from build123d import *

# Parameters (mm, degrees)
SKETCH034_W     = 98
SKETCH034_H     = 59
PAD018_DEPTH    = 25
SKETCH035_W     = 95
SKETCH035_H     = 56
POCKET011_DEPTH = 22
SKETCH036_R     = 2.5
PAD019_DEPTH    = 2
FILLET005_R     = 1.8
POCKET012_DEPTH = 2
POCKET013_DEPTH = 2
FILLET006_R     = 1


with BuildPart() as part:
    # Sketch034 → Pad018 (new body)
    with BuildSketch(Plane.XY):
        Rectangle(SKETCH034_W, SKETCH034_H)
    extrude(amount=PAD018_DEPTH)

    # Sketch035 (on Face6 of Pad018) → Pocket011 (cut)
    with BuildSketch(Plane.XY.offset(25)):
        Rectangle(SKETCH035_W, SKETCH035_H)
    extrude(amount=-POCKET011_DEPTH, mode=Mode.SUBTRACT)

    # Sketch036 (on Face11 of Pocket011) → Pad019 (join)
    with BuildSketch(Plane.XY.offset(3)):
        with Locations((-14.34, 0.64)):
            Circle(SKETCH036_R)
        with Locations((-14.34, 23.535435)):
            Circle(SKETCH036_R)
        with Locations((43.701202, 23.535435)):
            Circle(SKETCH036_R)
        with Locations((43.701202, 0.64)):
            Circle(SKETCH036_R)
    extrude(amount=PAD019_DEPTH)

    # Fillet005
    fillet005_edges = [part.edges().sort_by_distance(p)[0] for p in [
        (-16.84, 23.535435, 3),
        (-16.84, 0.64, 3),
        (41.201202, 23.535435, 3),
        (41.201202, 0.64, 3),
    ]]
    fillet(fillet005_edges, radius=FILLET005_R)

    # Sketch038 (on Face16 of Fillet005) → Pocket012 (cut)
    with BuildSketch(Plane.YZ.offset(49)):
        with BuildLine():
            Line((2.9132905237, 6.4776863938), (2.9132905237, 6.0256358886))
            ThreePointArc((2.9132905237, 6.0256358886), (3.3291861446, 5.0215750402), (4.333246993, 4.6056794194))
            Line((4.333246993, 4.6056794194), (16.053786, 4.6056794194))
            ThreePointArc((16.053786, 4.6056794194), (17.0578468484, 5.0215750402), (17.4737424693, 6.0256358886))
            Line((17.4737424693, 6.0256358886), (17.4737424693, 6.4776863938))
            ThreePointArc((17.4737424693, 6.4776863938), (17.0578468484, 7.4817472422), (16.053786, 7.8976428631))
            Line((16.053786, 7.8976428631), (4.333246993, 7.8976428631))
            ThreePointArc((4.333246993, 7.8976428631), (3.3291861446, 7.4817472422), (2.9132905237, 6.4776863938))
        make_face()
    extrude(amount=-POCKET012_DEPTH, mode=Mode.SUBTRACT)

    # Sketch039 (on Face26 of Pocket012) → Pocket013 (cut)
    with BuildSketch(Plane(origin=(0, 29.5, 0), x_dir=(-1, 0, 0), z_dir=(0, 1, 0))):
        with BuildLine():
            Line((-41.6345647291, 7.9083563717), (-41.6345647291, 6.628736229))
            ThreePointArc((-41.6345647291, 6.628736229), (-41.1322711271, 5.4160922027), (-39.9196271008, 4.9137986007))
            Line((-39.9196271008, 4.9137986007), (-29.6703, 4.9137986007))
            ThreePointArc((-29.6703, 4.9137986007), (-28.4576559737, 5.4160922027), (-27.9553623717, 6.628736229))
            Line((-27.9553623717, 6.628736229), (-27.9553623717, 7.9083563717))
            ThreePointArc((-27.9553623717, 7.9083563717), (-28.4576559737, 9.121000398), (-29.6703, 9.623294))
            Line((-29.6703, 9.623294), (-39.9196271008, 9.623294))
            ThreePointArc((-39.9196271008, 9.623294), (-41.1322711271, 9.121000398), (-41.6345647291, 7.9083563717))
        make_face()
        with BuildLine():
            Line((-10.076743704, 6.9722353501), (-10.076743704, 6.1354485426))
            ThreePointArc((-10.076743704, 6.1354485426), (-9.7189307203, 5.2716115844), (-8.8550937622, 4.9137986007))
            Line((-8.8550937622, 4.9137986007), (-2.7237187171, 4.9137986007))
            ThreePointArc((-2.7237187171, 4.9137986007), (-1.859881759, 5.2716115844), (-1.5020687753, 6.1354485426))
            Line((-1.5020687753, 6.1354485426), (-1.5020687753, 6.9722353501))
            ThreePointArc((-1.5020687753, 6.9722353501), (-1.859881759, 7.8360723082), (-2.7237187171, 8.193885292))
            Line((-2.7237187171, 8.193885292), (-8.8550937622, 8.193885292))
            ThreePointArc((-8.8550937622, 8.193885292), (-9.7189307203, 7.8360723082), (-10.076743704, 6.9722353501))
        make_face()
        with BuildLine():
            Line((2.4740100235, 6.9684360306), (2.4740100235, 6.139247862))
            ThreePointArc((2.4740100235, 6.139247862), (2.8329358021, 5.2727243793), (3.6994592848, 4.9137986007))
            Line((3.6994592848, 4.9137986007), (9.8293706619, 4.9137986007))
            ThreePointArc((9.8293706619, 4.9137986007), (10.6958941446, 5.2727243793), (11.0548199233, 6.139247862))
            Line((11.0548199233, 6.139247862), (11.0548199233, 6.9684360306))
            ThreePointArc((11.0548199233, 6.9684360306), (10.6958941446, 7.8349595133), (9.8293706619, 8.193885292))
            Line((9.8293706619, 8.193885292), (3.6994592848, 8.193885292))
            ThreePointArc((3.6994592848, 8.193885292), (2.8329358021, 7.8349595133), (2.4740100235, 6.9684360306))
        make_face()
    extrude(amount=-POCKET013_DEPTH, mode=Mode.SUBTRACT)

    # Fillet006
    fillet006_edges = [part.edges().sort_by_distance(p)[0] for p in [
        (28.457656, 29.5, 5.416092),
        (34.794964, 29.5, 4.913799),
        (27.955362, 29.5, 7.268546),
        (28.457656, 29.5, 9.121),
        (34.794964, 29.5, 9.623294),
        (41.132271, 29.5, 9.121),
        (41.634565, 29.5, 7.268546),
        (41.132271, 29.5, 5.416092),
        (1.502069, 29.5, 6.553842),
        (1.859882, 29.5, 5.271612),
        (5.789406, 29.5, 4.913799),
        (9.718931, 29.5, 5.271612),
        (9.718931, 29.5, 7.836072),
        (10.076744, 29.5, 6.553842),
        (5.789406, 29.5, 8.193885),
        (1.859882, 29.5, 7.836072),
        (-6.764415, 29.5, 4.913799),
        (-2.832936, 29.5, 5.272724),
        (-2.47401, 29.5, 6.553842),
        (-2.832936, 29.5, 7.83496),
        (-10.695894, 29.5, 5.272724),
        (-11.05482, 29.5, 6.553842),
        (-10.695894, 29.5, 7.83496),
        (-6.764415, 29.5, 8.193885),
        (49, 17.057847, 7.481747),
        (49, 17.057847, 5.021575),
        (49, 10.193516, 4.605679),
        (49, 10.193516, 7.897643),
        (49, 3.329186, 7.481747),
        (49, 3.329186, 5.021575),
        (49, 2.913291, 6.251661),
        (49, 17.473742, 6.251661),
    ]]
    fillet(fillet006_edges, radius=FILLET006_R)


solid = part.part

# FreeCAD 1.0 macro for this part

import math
import FreeCAD as App
import Part
import Sketcher
from FreeCAD import Vector


def edges_at(feature, points):
    """Names of the edges that pass closest to the given points."""
    edges = feature.Shape.Edges
    near = lambda p: min(range(len(edges)), key=lambda i: edges[i].distToShape(Part.Vertex(*p))[0])
    return sorted({f"Edge{near(p) + 1}" for p in points})

doc = App.newDocument("Part")
body = doc.addObject("PartDesign::Body", "Body")

# Sketch on XY plane
sketch1 = doc.addObject("Sketcher::SketchObject", "Sketch")
body.addObject(sketch1)
sketch1.AttachmentSupport = (doc.XY_Plane, [""])
sketch1.MapMode = "FlatFace"
sketch1.addGeometry(Part.LineSegment(Vector(-49, 29.5, 0), Vector(-49, -29.5, 0)), False)
sketch1.addGeometry(Part.LineSegment(Vector(-49, -29.5, 0), Vector(49, -29.5, 0)), False)
sketch1.addGeometry(Part.LineSegment(Vector(49, -29.5, 0), Vector(49, 29.5, 0)), False)
sketch1.addGeometry(Part.LineSegment(Vector(49, 29.5, 0), Vector(-49, 29.5, 0)), False)
sketch1.addConstraint(Sketcher.Constraint("Coincident", 0, 2, 1, 1))
sketch1.addConstraint(Sketcher.Constraint("Coincident", 1, 2, 2, 1))
sketch1.addConstraint(Sketcher.Constraint("Coincident", 2, 2, 3, 1))
sketch1.addConstraint(Sketcher.Constraint("Coincident", 3, 2, 0, 1))
sketch1.addConstraint(Sketcher.Constraint("Vertical", 0))
sketch1.addConstraint(Sketcher.Constraint("Horizontal", 1))
sketch1.addConstraint(Sketcher.Constraint("Vertical", 2))
sketch1.addConstraint(Sketcher.Constraint("Horizontal", 3))
sketch1.addConstraint(Sketcher.Constraint("Symmetric", 0, 2, 2, 2, -1, 1))
sketch1.addConstraint(Sketcher.Constraint("DistanceX", 1, 1, 1, 2, 98.0))
sketch1.addConstraint(Sketcher.Constraint("DistanceY", 0, 2, 0, 1, 59.0))
pad1 = doc.addObject("PartDesign::Pad", "Pad")
body.addObject(pad1)
pad1.Profile = sketch1
pad1.Length = 25

# Sketch on XY plane
sketch2 = doc.addObject("Sketcher::SketchObject", "Sketch001")
body.addObject(sketch2)
sketch2.AttachmentSupport = (doc.XY_Plane, [""])
sketch2.MapMode = "FlatFace"
sketch2.AttachmentOffset = App.Placement(Vector(0, 0, 25), App.Rotation())
sketch2.addGeometry(Part.LineSegment(Vector(-47.5, 28, 0), Vector(-47.5, -28, 0)), False)
sketch2.addGeometry(Part.LineSegment(Vector(-47.5, -28, 0), Vector(47.5, -28, 0)), False)
sketch2.addGeometry(Part.LineSegment(Vector(47.5, -28, 0), Vector(47.5, 28, 0)), False)
sketch2.addGeometry(Part.LineSegment(Vector(47.5, 28, 0), Vector(-47.5, 28, 0)), False)
sketch2.addConstraint(Sketcher.Constraint("Coincident", 0, 2, 1, 1))
sketch2.addConstraint(Sketcher.Constraint("Coincident", 1, 2, 2, 1))
sketch2.addConstraint(Sketcher.Constraint("Coincident", 2, 2, 3, 1))
sketch2.addConstraint(Sketcher.Constraint("Coincident", 3, 2, 0, 1))
sketch2.addConstraint(Sketcher.Constraint("Vertical", 0))
sketch2.addConstraint(Sketcher.Constraint("Horizontal", 1))
sketch2.addConstraint(Sketcher.Constraint("Vertical", 2))
sketch2.addConstraint(Sketcher.Constraint("Horizontal", 3))
sketch2.addConstraint(Sketcher.Constraint("Symmetric", 0, 2, 2, 2, -1, 1))
sketch2.addConstraint(Sketcher.Constraint("DistanceX", 1, 1, 1, 2, 95.0))
sketch2.addConstraint(Sketcher.Constraint("DistanceY", 0, 2, 0, 1, 56.0))
pocket1 = doc.addObject("PartDesign::Pocket", "Pocket")
body.addObject(pocket1)
pocket1.Profile = sketch2
pocket1.Length = 22

# Sketch on XY plane
sketch3 = doc.addObject("Sketcher::SketchObject", "Sketch002")
body.addObject(sketch3)
sketch3.AttachmentSupport = (doc.XY_Plane, [""])
sketch3.MapMode = "FlatFace"
sketch3.AttachmentOffset = App.Placement(Vector(0, 0, 3), App.Rotation())
sketch3.addGeometry(Part.Circle(Vector(-14.34, 0.64, 0), Vector(0, 0, 1), 2.5), False)
sketch3.addGeometry(Part.Circle(Vector(-14.34, 23.535435, 0), Vector(0, 0, 1), 2.5), False)
sketch3.addGeometry(Part.Circle(Vector(43.701202, 23.535435, 0), Vector(0, 0, 1), 2.5), False)
sketch3.addGeometry(Part.Circle(Vector(43.701202, 0.64, 0), Vector(0, 0, 1), 2.5), False)
sketch3.addConstraint(Sketcher.Constraint("Equal", 0, 1))
sketch3.addConstraint(Sketcher.Constraint("Equal", 1, 2))
sketch3.addConstraint(Sketcher.Constraint("Equal", 2, 3))
sketch3.addConstraint(Sketcher.Constraint("Horizontal", 1, 3, 2, 3))
sketch3.addConstraint(Sketcher.Constraint("Horizontal", 0, 3, 3, 3))
sketch3.addConstraint(Sketcher.Constraint("Vertical", 0, 3, 1, 3))
sketch3.addConstraint(Sketcher.Constraint("Vertical", 2, 3, 3, 3))
sketch3.addConstraint(Sketcher.Constraint("Diameter", 0, 5.0))
sketch3.addConstraint(Sketcher.Constraint("DistanceX", 0, 3, -1, 1, 14.34))
sketch3.addConstraint(Sketcher.Constraint("DistanceY", -1, 1, 0, 3, 0.64))
sketch3.addConstraint(Sketcher.Constraint("DistanceX", 1, 3, 2, 3, 58.041202))
sketch3.addConstraint(Sketcher.Constraint("DistanceY", -1, 1, 1, 3, 23.535435))
pad2 = doc.addObject("PartDesign::Pad", "Pad001")
body.addObject(pad2)
pad2.Profile = sketch3
pad2.Length = 2
doc.recompute()

fillet = doc.addObject("PartDesign::Fillet", "Fillet")
body.addObject(fillet)
fillet.Base = (pad2, edges_at(pad2, [
    (-16.84, 23.535, 3),
    (-16.84, 0.64, 3),
    (41.201, 23.535, 3),
    (41.201, 0.64, 3),
]))
fillet.Radius = 1.8

# Sketch on YZ plane
sketch4 = doc.addObject("Sketcher::SketchObject", "Sketch003")
body.addObject(sketch4)
sketch4.AttachmentSupport = (doc.YZ_Plane, [""])
sketch4.MapMode = "FlatFace"
sketch4.AttachmentOffset = App.Placement(Vector(0, 0, 49), App.Rotation())
sketch4.addGeometry(Part.LineSegment(Vector(2.913291, 6.477686, 0), Vector(2.913291, 6.025636, 0)), False)
sketch4.addGeometry(Part.ArcOfCircle(Part.Circle(Vector(4.333247, 6.025636, 0), Vector(0, 0, 1), 1.419956), math.radians(180), math.radians(270)), False)
sketch4.addGeometry(Part.LineSegment(Vector(4.333247, 4.605679, 0), Vector(16.053786, 4.605679, 0)), False)
sketch4.addGeometry(Part.ArcOfCircle(Part.Circle(Vector(16.053786, 6.025636, 0), Vector(0, 0, 1), 1.419956), math.radians(-90), math.radians(0)), False)
sketch4.addGeometry(Part.LineSegment(Vector(17.473742, 6.025636, 0), Vector(17.473742, 6.477686, 0)), False)
sketch4.addGeometry(Part.ArcOfCircle(Part.Circle(Vector(16.053786, 6.477686, 0), Vector(0, 0, 1), 1.419956), math.radians(0), math.radians(90)), False)
sketch4.addGeometry(Part.LineSegment(Vector(16.053786, 7.897643, 0), Vector(4.333247, 7.897643, 0)), False)
sketch4.addGeometry(Part.ArcOfCircle(Part.Circle(Vector(4.333247, 6.477686, 0), Vector(0, 0, 1), 1.419956), math.radians(90), math.radians(180)), False)
sketch4.addConstraint(Sketcher.Constraint("Tangent", 0, 2, 1, 1))
sketch4.addConstraint(Sketcher.Constraint("Tangent", 1, 2, 2, 1))
sketch4.addConstraint(Sketcher.Constraint("Tangent", 2, 2, 3, 1))
sketch4.addConstraint(Sketcher.Constraint("Tangent", 3, 2, 4, 1))
sketch4.addConstraint(Sketcher.Constraint("Tangent", 4, 2, 5, 1))
sketch4.addConstraint(Sketcher.Constraint("Tangent", 5, 2, 6, 1))
sketch4.addConstraint(Sketcher.Constraint("Tangent", 6, 2, 7, 1))
sketch4.addConstraint(Sketcher.Constraint("Tangent", 7, 2, 0, 1))
sketch4.addConstraint(Sketcher.Constraint("Vertical", 0))
sketch4.addConstraint(Sketcher.Constraint("Horizontal", 2))
sketch4.addConstraint(Sketcher.Constraint("Vertical", 4))
sketch4.addConstraint(Sketcher.Constraint("Horizontal", 6))
sketch4.addConstraint(Sketcher.Constraint("Equal", 1, 3))
sketch4.addConstraint(Sketcher.Constraint("Equal", 3, 5))
sketch4.addConstraint(Sketcher.Constraint("Equal", 5, 7))
sketch4.addConstraint(Sketcher.Constraint("Radius", 1, 1.419956))
sketch4.addConstraint(Sketcher.Constraint("DistanceX", 2, 1, 2, 2, 11.720539))
sketch4.addConstraint(Sketcher.Constraint("DistanceY", 0, 2, 0, 1, 0.452051))
sketch4.addConstraint(Sketcher.Constraint("DistanceX", -1, 1, 0, 2, 2.913291))
sketch4.addConstraint(Sketcher.Constraint("DistanceY", -1, 1, 1, 2, 4.605679))
pocket2 = doc.addObject("PartDesign::Pocket", "Pocket001")
body.addObject(pocket2)
pocket2.Profile = sketch4
pocket2.Length = 2

# Sketch on XZ plane
sketch5 = doc.addObject("Sketcher::SketchObject", "Sketch004")
body.addObject(sketch5)
sketch5.AttachmentSupport = (doc.XZ_Plane, [""])
sketch5.MapMode = "FlatFace"
sketch5.AttachmentOffset = App.Placement(Vector(0, 0, -29.5), App.Rotation())
sketch5.addGeometry(Part.LineSegment(Vector(41.634565, 7.908356, 0), Vector(41.634565, 6.628736, 0)), False)
sketch5.addGeometry(Part.ArcOfCircle(Part.Circle(Vector(39.919627, 6.628736, 0), Vector(0, 0, 1), 1.714938), math.radians(-90), math.radians(0)), False)
sketch5.addGeometry(Part.LineSegment(Vector(39.919627, 4.913799, 0), Vector(29.6703, 4.913799, 0)), False)
sketch5.addGeometry(Part.ArcOfCircle(Part.Circle(Vector(29.6703, 6.628736, 0), Vector(0, 0, 1), 1.714938), math.radians(180), math.radians(270)), False)
sketch5.addGeometry(Part.LineSegment(Vector(27.955362, 6.628736, 0), Vector(27.955362, 7.908356, 0)), False)
sketch5.addGeometry(Part.ArcOfCircle(Part.Circle(Vector(29.6703, 7.908356, 0), Vector(0, 0, 1), 1.714938), math.radians(90), math.radians(180)), False)
sketch5.addGeometry(Part.LineSegment(Vector(29.6703, 9.623294, 0), Vector(39.919627, 9.623294, 0)), False)
sketch5.addGeometry(Part.ArcOfCircle(Part.Circle(Vector(39.919627, 7.908356, 0), Vector(0, 0, 1), 1.714938), math.radians(0), math.radians(90)), False)
sketch5.addGeometry(Part.LineSegment(Vector(10.076744, 6.972235, 0), Vector(10.076744, 6.135449, 0)), False)
sketch5.addGeometry(Part.ArcOfCircle(Part.Circle(Vector(8.855094, 6.135449, 0), Vector(0, 0, 1), 1.22165), math.radians(-90), math.radians(0)), False)
sketch5.addGeometry(Part.LineSegment(Vector(8.855094, 4.913799, 0), Vector(2.723719, 4.913799, 0)), False)
sketch5.addGeometry(Part.ArcOfCircle(Part.Circle(Vector(2.723719, 6.135449, 0), Vector(0, 0, 1), 1.22165), math.radians(180), math.radians(270)), False)
sketch5.addGeometry(Part.LineSegment(Vector(1.502069, 6.135449, 0), Vector(1.502069, 6.972235, 0)), False)
sketch5.addGeometry(Part.ArcOfCircle(Part.Circle(Vector(2.723719, 6.972235, 0), Vector(0, 0, 1), 1.22165), math.radians(90), math.radians(180)), False)
sketch5.addGeometry(Part.LineSegment(Vector(2.723719, 8.193885, 0), Vector(8.855094, 8.193885, 0)), False)
sketch5.addGeometry(Part.ArcOfCircle(Part.Circle(Vector(8.855094, 6.972235, 0), Vector(0, 0, 1), 1.22165), math.radians(0), math.radians(90)), False)
sketch5.addGeometry(Part.LineSegment(Vector(-2.47401, 6.968436, 0), Vector(-2.47401, 6.139248, 0)), False)
sketch5.addGeometry(Part.ArcOfCircle(Part.Circle(Vector(-3.699459, 6.139248, 0), Vector(0, 0, 1), 1.225449), math.radians(-90), math.radians(0)), False)
sketch5.addGeometry(Part.LineSegment(Vector(-3.699459, 4.913799, 0), Vector(-9.829371, 4.913799, 0)), False)
sketch5.addGeometry(Part.ArcOfCircle(Part.Circle(Vector(-9.829371, 6.139248, 0), Vector(0, 0, 1), 1.225449), math.radians(180), math.radians(270)), False)
sketch5.addGeometry(Part.LineSegment(Vector(-11.05482, 6.139248, 0), Vector(-11.05482, 6.968436, 0)), False)
sketch5.addGeometry(Part.ArcOfCircle(Part.Circle(Vector(-9.829371, 6.968436, 0), Vector(0, 0, 1), 1.225449), math.radians(90), math.radians(180)), False)
sketch5.addGeometry(Part.LineSegment(Vector(-9.829371, 8.193885, 0), Vector(-3.699459, 8.193885, 0)), False)
sketch5.addGeometry(Part.ArcOfCircle(Part.Circle(Vector(-3.699459, 6.968436, 0), Vector(0, 0, 1), 1.225449), math.radians(0), math.radians(90)), False)
sketch5.addConstraint(Sketcher.Constraint("Tangent", 0, 2, 1, 2))
sketch5.addConstraint(Sketcher.Constraint("Tangent", 1, 1, 2, 1))
sketch5.addConstraint(Sketcher.Constraint("Tangent", 2, 2, 3, 2))
sketch5.addConstraint(Sketcher.Constraint("Tangent", 3, 1, 4, 1))
sketch5.addConstraint(Sketcher.Constraint("Tangent", 4, 2, 5, 2))
sketch5.addConstraint(Sketcher.Constraint("Tangent", 5, 1, 6, 1))
sketch5.addConstraint(Sketcher.Constraint("Tangent", 6, 2, 7, 2))
sketch5.addConstraint(Sketcher.Constraint("Tangent", 7, 1, 0, 1))
sketch5.addConstraint(Sketcher.Constraint("Tangent", 8, 2, 9, 2))
sketch5.addConstraint(Sketcher.Constraint("Tangent", 9, 1, 10, 1))
sketch5.addConstraint(Sketcher.Constraint("Tangent", 10, 2, 11, 2))
sketch5.addConstraint(Sketcher.Constraint("Tangent", 11, 1, 12, 1))
sketch5.addConstraint(Sketcher.Constraint("Tangent", 12, 2, 13, 2))
sketch5.addConstraint(Sketcher.Constraint("Tangent", 13, 1, 14, 1))
sketch5.addConstraint(Sketcher.Constraint("Tangent", 14, 2, 15, 2))
sketch5.addConstraint(Sketcher.Constraint("Tangent", 15, 1, 8, 1))
sketch5.addConstraint(Sketcher.Constraint("Tangent", 16, 2, 17, 2))
sketch5.addConstraint(Sketcher.Constraint("Tangent", 17, 1, 18, 1))
sketch5.addConstraint(Sketcher.Constraint("Tangent", 18, 2, 19, 2))
sketch5.addConstraint(Sketcher.Constraint("Tangent", 19, 1, 20, 1))
sketch5.addConstraint(Sketcher.Constraint("Tangent", 20, 2, 21, 2))
sketch5.addConstraint(Sketcher.Constraint("Tangent", 21, 1, 22, 1))
sketch5.addConstraint(Sketcher.Constraint("Tangent", 22, 2, 23, 2))
sketch5.addConstraint(Sketcher.Constraint("Tangent", 23, 1, 16, 1))
sketch5.addConstraint(Sketcher.Constraint("Vertical", 0))
sketch5.addConstraint(Sketcher.Constraint("Horizontal", 2))
sketch5.addConstraint(Sketcher.Constraint("Vertical", 4))
sketch5.addConstraint(Sketcher.Constraint("Horizontal", 6))
sketch5.addConstraint(Sketcher.Constraint("Vertical", 8))
sketch5.addConstraint(Sketcher.Constraint("Horizontal", 10))
sketch5.addConstraint(Sketcher.Constraint("Vertical", 12))
sketch5.addConstraint(Sketcher.Constraint("Horizontal", 14))
sketch5.addConstraint(Sketcher.Constraint("Vertical", 16))
sketch5.addConstraint(Sketcher.Constraint("Horizontal", 18))
sketch5.addConstraint(Sketcher.Constraint("Vertical", 20))
sketch5.addConstraint(Sketcher.Constraint("Horizontal", 22))
sketch5.addConstraint(Sketcher.Constraint("Equal", 1, 3))
sketch5.addConstraint(Sketcher.Constraint("Equal", 3, 5))
sketch5.addConstraint(Sketcher.Constraint("Equal", 5, 7))
sketch5.addConstraint(Sketcher.Constraint("Equal", 9, 11))
sketch5.addConstraint(Sketcher.Constraint("Equal", 11, 13))
sketch5.addConstraint(Sketcher.Constraint("Equal", 13, 15))
sketch5.addConstraint(Sketcher.Constraint("Equal", 17, 19))
sketch5.addConstraint(Sketcher.Constraint("Equal", 19, 21))
sketch5.addConstraint(Sketcher.Constraint("Equal", 21, 23))
sketch5.addConstraint(Sketcher.Constraint("Horizontal", 2, 2, 9, 1))
sketch5.addConstraint(Sketcher.Constraint("Horizontal", 10, 2, 17, 1))
sketch5.addConstraint(Sketcher.Constraint("Horizontal", 14, 2, 21, 1))
sketch5.addConstraint(Sketcher.Constraint("Radius", 9, 1.22165))
sketch5.addConstraint(Sketcher.Constraint("Radius", 17, 1.225449))
sketch5.addConstraint(Sketcher.Constraint("Radius", 1, 1.714938))
sketch5.addConstraint(Sketcher.Constraint("DistanceX", 18, 2, 18, 1, 6.129911))
sketch5.addConstraint(Sketcher.Constraint("DistanceY", 0, 2, 0, 1, 1.27962))
sketch5.addConstraint(Sketcher.Constraint("DistanceY", 16, 2, 16, 1, 0.829188))
sketch5.addConstraint(Sketcher.Constraint("DistanceX", -1, 1, 3, 3, 29.6703))
sketch5.addConstraint(Sketcher.Constraint("DistanceY", -1, 1, 1, 1, 4.913799))
sketch5.addConstraint(Sketcher.Constraint("DistanceX", 2, 2, 2, 1, 10.249327))
sketch5.addConstraint(Sketcher.Constraint("DistanceX", 10, 2, 10, 1, 6.131375))
sketch5.addConstraint(Sketcher.Constraint("DistanceX", -1, 1, 11, 3, 2.723719))
sketch5.addConstraint(Sketcher.Constraint("DistanceX", 17, 3, -1, 1, 3.699459))
pocket3 = doc.addObject("PartDesign::Pocket", "Pocket002")
body.addObject(pocket3)
pocket3.Profile = sketch5
pocket3.Length = 2
pocket3.Reversed = True
doc.recompute()

fillet2 = doc.addObject("PartDesign::Fillet", "Fillet001")
body.addObject(fillet2)
fillet2.Base = (pocket3, edges_at(pocket3, [
    (28.458, 29.5, 5.416),
    (34.795, 29.5, 4.914),
    (27.955, 29.5, 7.269),
    (28.458, 29.5, 9.121),
    (34.795, 29.5, 9.623),
    (41.132, 29.5, 9.121),
    (41.635, 29.5, 7.269),
    (41.132, 29.5, 5.416),
    (1.502, 29.5, 6.554),
    (1.86, 29.5, 5.272),
    (5.789, 29.5, 4.914),
    (9.719, 29.5, 5.272),
    (9.719, 29.5, 7.836),
    (10.077, 29.5, 6.554),
    (5.789, 29.5, 8.194),
    (1.86, 29.5, 7.836),
    (-6.764, 29.5, 4.914),
    (-2.833, 29.5, 5.273),
    (-2.474, 29.5, 6.554),
    (-2.833, 29.5, 7.835),
    (-10.696, 29.5, 5.273),
    (-11.055, 29.5, 6.554),
    (-10.696, 29.5, 7.835),
    (-6.764, 29.5, 8.194),
    (49, 17.058, 7.482),
    (49, 17.058, 5.022),
    (49, 10.194, 4.606),
    (49, 10.194, 7.898),
    (49, 3.329, 7.482),
    (49, 3.329, 5.022),
    (49, 2.913, 6.252),
    (49, 17.474, 6.252),
]))
fillet2.Radius = 1

doc.recompute()
